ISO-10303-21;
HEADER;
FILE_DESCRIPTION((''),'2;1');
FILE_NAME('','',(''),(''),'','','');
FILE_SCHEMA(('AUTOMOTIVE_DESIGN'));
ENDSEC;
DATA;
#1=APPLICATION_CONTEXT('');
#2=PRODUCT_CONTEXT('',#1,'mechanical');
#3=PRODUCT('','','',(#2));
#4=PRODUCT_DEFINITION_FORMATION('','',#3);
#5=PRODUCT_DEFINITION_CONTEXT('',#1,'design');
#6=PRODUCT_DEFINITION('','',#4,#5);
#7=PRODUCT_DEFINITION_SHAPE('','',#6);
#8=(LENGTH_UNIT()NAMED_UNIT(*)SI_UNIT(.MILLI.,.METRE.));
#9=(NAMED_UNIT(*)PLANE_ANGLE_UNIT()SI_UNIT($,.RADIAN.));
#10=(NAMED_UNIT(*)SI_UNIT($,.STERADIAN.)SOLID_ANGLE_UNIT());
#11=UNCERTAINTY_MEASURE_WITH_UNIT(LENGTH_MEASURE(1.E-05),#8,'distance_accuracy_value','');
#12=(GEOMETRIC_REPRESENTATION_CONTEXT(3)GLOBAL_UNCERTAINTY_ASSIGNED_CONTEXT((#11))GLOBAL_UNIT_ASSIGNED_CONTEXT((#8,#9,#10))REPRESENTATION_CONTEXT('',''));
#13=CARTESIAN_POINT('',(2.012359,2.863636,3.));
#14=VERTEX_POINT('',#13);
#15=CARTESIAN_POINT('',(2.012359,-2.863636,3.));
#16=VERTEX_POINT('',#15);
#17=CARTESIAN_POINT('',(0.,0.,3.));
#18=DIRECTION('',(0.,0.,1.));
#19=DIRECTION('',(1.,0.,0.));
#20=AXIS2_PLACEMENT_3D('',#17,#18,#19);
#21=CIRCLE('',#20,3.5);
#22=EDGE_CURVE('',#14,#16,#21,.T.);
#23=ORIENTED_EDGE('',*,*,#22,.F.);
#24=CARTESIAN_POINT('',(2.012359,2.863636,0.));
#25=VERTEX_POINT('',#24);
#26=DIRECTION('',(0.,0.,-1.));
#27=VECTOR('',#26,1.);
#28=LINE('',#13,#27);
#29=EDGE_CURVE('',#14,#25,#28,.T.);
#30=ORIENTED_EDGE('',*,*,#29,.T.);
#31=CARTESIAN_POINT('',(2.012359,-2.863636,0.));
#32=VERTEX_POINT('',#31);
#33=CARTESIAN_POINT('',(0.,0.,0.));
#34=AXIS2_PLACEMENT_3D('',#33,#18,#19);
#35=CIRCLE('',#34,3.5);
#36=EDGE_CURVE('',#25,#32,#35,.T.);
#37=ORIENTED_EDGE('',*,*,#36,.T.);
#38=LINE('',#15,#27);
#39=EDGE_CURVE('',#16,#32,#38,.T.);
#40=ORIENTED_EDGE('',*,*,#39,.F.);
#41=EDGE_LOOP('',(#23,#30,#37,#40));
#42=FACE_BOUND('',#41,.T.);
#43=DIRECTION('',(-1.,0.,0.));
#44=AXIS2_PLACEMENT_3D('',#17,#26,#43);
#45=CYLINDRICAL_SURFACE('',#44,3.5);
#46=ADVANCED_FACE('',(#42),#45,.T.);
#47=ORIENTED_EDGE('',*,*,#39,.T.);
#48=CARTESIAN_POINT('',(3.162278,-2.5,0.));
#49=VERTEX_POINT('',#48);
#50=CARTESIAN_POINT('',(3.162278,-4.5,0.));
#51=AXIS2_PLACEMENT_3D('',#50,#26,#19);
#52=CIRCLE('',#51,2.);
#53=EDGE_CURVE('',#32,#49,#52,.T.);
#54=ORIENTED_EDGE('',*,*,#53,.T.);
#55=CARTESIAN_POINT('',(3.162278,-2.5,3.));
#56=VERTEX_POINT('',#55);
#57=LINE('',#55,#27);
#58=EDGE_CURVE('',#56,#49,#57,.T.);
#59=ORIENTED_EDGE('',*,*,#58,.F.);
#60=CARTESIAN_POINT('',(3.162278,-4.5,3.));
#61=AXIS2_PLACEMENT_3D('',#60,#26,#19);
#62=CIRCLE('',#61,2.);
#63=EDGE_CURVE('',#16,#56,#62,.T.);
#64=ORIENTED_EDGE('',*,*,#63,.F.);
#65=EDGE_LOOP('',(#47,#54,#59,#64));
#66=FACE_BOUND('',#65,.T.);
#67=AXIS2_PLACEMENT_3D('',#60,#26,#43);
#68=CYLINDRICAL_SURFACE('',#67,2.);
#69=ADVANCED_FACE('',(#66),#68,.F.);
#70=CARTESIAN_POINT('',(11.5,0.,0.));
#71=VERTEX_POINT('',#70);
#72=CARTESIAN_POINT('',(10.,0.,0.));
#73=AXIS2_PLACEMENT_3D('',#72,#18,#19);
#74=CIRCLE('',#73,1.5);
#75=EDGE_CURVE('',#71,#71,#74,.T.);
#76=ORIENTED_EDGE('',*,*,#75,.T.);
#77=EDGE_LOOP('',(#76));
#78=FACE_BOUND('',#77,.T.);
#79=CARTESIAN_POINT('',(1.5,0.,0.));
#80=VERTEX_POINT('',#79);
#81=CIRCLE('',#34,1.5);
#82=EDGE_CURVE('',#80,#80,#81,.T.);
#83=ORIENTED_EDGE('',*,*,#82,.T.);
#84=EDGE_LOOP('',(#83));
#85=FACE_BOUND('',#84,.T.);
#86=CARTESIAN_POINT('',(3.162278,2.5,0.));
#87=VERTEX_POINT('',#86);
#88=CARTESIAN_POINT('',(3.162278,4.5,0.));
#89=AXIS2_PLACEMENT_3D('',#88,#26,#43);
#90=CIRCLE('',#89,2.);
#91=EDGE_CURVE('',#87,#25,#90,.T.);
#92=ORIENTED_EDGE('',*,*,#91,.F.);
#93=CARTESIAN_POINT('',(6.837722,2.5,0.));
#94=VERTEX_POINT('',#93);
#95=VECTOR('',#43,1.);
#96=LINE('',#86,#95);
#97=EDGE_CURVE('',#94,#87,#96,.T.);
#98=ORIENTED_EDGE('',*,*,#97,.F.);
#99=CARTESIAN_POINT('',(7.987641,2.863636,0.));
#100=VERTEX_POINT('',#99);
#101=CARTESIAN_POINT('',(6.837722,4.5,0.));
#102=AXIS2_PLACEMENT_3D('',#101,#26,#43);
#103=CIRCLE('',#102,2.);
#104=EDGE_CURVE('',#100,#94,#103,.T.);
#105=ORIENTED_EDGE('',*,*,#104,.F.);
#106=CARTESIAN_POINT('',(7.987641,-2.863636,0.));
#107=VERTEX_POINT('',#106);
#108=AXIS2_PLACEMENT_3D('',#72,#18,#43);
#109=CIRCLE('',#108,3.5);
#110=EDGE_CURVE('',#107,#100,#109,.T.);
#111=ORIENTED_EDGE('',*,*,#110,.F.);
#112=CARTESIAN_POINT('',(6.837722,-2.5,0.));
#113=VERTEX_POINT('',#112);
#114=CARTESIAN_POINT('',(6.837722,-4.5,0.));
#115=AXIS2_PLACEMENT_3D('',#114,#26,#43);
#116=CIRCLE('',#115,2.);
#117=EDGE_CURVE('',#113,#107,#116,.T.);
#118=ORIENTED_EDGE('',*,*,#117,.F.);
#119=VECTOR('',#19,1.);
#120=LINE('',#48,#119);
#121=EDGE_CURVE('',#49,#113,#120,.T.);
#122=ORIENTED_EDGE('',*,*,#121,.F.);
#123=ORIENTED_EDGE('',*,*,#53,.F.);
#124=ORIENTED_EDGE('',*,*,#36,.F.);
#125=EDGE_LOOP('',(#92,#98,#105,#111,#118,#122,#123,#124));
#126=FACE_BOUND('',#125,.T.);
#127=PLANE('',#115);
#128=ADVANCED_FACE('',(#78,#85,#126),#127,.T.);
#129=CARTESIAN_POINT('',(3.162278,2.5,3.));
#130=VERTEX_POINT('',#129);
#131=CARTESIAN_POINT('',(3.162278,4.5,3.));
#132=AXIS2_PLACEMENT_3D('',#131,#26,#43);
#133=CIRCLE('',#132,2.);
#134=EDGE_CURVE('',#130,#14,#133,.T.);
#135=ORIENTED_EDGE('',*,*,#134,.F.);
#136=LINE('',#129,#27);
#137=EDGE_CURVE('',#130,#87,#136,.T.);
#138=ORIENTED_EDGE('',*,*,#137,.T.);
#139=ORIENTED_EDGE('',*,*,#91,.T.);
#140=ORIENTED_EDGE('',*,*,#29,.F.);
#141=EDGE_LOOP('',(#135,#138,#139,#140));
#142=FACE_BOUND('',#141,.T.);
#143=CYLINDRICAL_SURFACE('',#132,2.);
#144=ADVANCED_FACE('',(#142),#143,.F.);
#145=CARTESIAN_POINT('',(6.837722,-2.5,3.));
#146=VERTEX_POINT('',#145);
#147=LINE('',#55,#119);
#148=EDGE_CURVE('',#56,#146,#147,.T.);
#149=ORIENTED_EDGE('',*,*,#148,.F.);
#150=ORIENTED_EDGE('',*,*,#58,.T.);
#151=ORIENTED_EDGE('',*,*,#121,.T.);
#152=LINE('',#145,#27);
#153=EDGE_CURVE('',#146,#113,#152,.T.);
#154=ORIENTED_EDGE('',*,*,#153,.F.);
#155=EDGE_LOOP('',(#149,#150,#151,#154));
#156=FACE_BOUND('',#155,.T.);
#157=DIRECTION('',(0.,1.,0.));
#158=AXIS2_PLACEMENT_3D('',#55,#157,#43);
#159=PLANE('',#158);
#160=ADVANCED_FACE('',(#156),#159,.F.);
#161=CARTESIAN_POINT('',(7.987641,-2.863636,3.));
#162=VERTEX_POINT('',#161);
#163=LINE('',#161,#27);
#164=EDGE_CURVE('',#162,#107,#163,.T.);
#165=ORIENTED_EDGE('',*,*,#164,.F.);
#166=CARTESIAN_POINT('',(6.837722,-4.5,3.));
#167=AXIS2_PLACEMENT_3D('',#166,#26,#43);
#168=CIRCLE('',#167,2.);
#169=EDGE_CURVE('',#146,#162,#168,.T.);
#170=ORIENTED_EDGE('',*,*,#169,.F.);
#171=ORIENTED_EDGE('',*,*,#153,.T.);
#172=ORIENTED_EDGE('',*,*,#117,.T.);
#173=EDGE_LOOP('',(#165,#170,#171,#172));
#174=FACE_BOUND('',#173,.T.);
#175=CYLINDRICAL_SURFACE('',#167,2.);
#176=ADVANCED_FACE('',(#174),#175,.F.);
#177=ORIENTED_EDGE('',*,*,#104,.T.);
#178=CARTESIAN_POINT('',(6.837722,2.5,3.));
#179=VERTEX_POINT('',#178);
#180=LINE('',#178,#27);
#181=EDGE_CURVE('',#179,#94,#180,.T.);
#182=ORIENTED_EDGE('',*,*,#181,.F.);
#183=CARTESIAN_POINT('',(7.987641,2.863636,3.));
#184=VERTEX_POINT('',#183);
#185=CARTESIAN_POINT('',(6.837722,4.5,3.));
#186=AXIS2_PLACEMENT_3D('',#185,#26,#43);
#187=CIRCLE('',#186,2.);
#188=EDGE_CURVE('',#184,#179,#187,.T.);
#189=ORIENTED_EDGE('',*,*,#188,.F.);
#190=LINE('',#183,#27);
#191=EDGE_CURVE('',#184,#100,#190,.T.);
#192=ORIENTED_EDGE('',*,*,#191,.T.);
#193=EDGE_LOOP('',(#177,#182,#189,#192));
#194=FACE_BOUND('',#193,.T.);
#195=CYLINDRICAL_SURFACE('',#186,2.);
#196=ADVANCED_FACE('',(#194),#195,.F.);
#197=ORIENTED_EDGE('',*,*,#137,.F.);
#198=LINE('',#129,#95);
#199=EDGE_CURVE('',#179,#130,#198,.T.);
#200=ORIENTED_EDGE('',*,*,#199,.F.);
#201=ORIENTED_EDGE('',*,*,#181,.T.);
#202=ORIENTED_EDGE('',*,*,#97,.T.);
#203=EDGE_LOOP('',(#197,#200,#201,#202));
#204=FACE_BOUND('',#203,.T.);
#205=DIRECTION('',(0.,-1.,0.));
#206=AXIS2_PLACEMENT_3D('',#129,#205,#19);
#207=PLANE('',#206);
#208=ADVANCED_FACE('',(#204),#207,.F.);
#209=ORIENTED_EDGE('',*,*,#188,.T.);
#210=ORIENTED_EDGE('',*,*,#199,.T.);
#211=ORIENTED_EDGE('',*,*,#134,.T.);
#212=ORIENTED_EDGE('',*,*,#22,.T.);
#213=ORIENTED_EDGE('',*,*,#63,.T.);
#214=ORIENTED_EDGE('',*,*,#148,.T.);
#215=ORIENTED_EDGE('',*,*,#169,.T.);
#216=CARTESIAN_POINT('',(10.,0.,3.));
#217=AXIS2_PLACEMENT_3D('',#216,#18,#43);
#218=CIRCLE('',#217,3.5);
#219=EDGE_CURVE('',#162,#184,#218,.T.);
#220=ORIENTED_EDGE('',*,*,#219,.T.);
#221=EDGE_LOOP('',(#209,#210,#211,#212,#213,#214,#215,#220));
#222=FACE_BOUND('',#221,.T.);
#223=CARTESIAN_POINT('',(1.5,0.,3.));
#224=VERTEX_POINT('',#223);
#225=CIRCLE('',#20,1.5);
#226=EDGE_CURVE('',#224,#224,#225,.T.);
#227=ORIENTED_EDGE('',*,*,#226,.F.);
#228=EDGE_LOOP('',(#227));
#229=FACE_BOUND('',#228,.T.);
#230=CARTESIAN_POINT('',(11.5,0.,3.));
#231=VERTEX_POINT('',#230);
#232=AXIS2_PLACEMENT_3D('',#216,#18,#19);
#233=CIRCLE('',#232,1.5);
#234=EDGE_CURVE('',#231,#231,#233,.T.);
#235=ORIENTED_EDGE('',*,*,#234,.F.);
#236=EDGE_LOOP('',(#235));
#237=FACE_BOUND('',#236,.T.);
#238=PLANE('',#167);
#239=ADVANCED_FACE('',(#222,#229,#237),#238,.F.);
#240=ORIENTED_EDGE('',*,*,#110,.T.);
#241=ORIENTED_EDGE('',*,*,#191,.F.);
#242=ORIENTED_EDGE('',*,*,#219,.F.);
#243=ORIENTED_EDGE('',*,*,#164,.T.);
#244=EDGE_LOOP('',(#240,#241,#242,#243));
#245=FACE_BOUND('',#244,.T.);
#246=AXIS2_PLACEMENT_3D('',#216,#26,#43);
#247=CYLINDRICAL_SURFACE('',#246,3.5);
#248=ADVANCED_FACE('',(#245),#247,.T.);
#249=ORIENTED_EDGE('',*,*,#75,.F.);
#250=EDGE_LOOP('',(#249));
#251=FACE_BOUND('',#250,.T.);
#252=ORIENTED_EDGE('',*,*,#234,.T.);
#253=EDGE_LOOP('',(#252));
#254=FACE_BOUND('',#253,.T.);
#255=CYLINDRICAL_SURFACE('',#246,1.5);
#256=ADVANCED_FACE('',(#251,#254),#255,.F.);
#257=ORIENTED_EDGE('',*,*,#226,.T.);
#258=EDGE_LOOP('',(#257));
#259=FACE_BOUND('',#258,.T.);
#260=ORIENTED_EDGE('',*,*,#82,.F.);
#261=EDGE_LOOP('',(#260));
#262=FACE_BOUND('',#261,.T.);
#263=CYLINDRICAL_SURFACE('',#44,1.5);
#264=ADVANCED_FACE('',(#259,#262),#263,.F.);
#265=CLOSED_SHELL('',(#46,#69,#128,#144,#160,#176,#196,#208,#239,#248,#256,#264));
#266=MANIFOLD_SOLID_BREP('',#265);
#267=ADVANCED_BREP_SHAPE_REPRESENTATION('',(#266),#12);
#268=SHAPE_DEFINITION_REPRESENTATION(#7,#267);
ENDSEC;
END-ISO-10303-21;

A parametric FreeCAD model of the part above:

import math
import FreeCAD as App
import Part
import Sketcher
from FreeCAD import Vector
Q = App.Units.Quantity

doc = App.newDocument("Part")
body = doc.addObject("PartDesign::Body", "Body")

sketch1 = body.newObject("Sketcher::SketchObject", "Sketch")
sketch1.AttachmentSupport = (doc.getObject("XY_Plane"), [""])
sketch1.MapMode = "FlatFace"
sketch1.addGeometry(Part.LineSegment(Vector(6.8, 2.5, 0), Vector(3.2, 2.5, 0)), False)
sketch1.addGeometry(Part.ArcOfCircle(Part.Circle(Vector(3.2, 4.5, 0), Vector(0, 0, 1), 2), math.radians(-125), math.radians(-90)), False)
sketch1.addGeometry(Part.ArcOfCircle(Part.Circle(Vector(0, 0, 0), Vector(0, 0, 1), 3.5), math.radians(55), math.radians(305)), False)
sketch1.addGeometry(Part.ArcOfCircle(Part.Circle(Vector(3.2, -4.5, 0), Vector(0, 0, 1), 2), math.radians(90), math.radians(125)), False)
sketch1.addGeometry(Part.LineSegment(Vector(3.2, -2.5, 0), Vector(6.8, -2.5, 0)), False)
sketch1.addGeometry(Part.ArcOfCircle(Part.Circle(Vector(6.8, -4.5, 0), Vector(0, 0, 1), 2), math.radians(55), math.radians(90)), False)
sketch1.addGeometry(Part.ArcOfCircle(Part.Circle(Vector(10, 0, 0), Vector(0, 0, 1), 3.5), math.radians(-125), math.radians(125)), False)
sketch1.addGeometry(Part.ArcOfCircle(Part.Circle(Vector(6.8, 4.5, 0), Vector(0, 0, 1), 2), math.radians(-90), math.radians(-55)), False)
sketch1.addGeometry(Part.Circle(Vector(10, 0, 0), Vector(0, 0, 1), 1.5), False)
sketch1.addGeometry(Part.Circle(Vector(0, 0, 0), Vector(0, 0, 1), 1.5), False)
sketch1.addConstraint(Sketcher.Constraint("Tangent", 0, 2, 1, 2))
sketch1.addConstraint(Sketcher.Constraint("Tangent", 1, 1, 2, 1))
sketch1.addConstraint(Sketcher.Constraint("Tangent", 2, 2, 3, 2))
sketch1.addConstraint(Sketcher.Constraint("Tangent", 3, 1, 4, 1))
sketch1.addConstraint(Sketcher.Constraint("Tangent", 4, 2, 5, 2))
sketch1.addConstraint(Sketcher.Constraint("Tangent", 5, 1, 6, 1))
sketch1.addConstraint(Sketcher.Constraint("Tangent", 6, 2, 7, 2))
sketch1.addConstraint(Sketcher.Constraint("Tangent", 7, 1, 0, 1))
sketch1.addConstraint(Sketcher.Constraint("Horizontal", 0))
sketch1.addConstraint(Sketcher.Constraint("Horizontal", 4))
sketch1.addConstraint(Sketcher.Constraint("Coincident", 2, 3, -1, 1))
sketch1.addConstraint(Sketcher.Constraint("Coincident", 9, 3, -1, 1))
sketch1.addConstraint(Sketcher.Constraint("Coincident", 8, 3, 6, 3))
sketch1.addConstraint(Sketcher.Constraint("Equal", 1, 3))
sketch1.addConstraint(Sketcher.Constraint("Equal", 3, 5))
sketch1.addConstraint(Sketcher.Constraint("Equal", 2, 6))
sketch1.addConstraint(Sketcher.Constraint("Equal", 5, 7))
sketch1.addConstraint(Sketcher.Constraint("Equal", 8, 9))
sketch1.addConstraint(Sketcher.Constraint("Symmetric", 5, 3, 7, 3, -1))
sketch1.addConstraint(Sketcher.Constraint("Diameter", 8, Q("3 mm")))
sketch1.addConstraint(Sketcher.Constraint("Radius", 1, Q("2 mm")))
sketch1.addConstraint(Sketcher.Constraint("Radius", 2, Q("3.5 mm")))
sketch1.addConstraint(Sketcher.Constraint("DistanceX", -1, 1, 6, 3, Q("10 mm")))
sketch1.addConstraint(Sketcher.Constraint("DistanceY", 3, 3, 1, 3, Q("9 mm")))
pad1 = body.newObject("PartDesign::Pad", "Pad")
pad1.Profile = sketch1
pad1.Length = 3

doc.recompute()
